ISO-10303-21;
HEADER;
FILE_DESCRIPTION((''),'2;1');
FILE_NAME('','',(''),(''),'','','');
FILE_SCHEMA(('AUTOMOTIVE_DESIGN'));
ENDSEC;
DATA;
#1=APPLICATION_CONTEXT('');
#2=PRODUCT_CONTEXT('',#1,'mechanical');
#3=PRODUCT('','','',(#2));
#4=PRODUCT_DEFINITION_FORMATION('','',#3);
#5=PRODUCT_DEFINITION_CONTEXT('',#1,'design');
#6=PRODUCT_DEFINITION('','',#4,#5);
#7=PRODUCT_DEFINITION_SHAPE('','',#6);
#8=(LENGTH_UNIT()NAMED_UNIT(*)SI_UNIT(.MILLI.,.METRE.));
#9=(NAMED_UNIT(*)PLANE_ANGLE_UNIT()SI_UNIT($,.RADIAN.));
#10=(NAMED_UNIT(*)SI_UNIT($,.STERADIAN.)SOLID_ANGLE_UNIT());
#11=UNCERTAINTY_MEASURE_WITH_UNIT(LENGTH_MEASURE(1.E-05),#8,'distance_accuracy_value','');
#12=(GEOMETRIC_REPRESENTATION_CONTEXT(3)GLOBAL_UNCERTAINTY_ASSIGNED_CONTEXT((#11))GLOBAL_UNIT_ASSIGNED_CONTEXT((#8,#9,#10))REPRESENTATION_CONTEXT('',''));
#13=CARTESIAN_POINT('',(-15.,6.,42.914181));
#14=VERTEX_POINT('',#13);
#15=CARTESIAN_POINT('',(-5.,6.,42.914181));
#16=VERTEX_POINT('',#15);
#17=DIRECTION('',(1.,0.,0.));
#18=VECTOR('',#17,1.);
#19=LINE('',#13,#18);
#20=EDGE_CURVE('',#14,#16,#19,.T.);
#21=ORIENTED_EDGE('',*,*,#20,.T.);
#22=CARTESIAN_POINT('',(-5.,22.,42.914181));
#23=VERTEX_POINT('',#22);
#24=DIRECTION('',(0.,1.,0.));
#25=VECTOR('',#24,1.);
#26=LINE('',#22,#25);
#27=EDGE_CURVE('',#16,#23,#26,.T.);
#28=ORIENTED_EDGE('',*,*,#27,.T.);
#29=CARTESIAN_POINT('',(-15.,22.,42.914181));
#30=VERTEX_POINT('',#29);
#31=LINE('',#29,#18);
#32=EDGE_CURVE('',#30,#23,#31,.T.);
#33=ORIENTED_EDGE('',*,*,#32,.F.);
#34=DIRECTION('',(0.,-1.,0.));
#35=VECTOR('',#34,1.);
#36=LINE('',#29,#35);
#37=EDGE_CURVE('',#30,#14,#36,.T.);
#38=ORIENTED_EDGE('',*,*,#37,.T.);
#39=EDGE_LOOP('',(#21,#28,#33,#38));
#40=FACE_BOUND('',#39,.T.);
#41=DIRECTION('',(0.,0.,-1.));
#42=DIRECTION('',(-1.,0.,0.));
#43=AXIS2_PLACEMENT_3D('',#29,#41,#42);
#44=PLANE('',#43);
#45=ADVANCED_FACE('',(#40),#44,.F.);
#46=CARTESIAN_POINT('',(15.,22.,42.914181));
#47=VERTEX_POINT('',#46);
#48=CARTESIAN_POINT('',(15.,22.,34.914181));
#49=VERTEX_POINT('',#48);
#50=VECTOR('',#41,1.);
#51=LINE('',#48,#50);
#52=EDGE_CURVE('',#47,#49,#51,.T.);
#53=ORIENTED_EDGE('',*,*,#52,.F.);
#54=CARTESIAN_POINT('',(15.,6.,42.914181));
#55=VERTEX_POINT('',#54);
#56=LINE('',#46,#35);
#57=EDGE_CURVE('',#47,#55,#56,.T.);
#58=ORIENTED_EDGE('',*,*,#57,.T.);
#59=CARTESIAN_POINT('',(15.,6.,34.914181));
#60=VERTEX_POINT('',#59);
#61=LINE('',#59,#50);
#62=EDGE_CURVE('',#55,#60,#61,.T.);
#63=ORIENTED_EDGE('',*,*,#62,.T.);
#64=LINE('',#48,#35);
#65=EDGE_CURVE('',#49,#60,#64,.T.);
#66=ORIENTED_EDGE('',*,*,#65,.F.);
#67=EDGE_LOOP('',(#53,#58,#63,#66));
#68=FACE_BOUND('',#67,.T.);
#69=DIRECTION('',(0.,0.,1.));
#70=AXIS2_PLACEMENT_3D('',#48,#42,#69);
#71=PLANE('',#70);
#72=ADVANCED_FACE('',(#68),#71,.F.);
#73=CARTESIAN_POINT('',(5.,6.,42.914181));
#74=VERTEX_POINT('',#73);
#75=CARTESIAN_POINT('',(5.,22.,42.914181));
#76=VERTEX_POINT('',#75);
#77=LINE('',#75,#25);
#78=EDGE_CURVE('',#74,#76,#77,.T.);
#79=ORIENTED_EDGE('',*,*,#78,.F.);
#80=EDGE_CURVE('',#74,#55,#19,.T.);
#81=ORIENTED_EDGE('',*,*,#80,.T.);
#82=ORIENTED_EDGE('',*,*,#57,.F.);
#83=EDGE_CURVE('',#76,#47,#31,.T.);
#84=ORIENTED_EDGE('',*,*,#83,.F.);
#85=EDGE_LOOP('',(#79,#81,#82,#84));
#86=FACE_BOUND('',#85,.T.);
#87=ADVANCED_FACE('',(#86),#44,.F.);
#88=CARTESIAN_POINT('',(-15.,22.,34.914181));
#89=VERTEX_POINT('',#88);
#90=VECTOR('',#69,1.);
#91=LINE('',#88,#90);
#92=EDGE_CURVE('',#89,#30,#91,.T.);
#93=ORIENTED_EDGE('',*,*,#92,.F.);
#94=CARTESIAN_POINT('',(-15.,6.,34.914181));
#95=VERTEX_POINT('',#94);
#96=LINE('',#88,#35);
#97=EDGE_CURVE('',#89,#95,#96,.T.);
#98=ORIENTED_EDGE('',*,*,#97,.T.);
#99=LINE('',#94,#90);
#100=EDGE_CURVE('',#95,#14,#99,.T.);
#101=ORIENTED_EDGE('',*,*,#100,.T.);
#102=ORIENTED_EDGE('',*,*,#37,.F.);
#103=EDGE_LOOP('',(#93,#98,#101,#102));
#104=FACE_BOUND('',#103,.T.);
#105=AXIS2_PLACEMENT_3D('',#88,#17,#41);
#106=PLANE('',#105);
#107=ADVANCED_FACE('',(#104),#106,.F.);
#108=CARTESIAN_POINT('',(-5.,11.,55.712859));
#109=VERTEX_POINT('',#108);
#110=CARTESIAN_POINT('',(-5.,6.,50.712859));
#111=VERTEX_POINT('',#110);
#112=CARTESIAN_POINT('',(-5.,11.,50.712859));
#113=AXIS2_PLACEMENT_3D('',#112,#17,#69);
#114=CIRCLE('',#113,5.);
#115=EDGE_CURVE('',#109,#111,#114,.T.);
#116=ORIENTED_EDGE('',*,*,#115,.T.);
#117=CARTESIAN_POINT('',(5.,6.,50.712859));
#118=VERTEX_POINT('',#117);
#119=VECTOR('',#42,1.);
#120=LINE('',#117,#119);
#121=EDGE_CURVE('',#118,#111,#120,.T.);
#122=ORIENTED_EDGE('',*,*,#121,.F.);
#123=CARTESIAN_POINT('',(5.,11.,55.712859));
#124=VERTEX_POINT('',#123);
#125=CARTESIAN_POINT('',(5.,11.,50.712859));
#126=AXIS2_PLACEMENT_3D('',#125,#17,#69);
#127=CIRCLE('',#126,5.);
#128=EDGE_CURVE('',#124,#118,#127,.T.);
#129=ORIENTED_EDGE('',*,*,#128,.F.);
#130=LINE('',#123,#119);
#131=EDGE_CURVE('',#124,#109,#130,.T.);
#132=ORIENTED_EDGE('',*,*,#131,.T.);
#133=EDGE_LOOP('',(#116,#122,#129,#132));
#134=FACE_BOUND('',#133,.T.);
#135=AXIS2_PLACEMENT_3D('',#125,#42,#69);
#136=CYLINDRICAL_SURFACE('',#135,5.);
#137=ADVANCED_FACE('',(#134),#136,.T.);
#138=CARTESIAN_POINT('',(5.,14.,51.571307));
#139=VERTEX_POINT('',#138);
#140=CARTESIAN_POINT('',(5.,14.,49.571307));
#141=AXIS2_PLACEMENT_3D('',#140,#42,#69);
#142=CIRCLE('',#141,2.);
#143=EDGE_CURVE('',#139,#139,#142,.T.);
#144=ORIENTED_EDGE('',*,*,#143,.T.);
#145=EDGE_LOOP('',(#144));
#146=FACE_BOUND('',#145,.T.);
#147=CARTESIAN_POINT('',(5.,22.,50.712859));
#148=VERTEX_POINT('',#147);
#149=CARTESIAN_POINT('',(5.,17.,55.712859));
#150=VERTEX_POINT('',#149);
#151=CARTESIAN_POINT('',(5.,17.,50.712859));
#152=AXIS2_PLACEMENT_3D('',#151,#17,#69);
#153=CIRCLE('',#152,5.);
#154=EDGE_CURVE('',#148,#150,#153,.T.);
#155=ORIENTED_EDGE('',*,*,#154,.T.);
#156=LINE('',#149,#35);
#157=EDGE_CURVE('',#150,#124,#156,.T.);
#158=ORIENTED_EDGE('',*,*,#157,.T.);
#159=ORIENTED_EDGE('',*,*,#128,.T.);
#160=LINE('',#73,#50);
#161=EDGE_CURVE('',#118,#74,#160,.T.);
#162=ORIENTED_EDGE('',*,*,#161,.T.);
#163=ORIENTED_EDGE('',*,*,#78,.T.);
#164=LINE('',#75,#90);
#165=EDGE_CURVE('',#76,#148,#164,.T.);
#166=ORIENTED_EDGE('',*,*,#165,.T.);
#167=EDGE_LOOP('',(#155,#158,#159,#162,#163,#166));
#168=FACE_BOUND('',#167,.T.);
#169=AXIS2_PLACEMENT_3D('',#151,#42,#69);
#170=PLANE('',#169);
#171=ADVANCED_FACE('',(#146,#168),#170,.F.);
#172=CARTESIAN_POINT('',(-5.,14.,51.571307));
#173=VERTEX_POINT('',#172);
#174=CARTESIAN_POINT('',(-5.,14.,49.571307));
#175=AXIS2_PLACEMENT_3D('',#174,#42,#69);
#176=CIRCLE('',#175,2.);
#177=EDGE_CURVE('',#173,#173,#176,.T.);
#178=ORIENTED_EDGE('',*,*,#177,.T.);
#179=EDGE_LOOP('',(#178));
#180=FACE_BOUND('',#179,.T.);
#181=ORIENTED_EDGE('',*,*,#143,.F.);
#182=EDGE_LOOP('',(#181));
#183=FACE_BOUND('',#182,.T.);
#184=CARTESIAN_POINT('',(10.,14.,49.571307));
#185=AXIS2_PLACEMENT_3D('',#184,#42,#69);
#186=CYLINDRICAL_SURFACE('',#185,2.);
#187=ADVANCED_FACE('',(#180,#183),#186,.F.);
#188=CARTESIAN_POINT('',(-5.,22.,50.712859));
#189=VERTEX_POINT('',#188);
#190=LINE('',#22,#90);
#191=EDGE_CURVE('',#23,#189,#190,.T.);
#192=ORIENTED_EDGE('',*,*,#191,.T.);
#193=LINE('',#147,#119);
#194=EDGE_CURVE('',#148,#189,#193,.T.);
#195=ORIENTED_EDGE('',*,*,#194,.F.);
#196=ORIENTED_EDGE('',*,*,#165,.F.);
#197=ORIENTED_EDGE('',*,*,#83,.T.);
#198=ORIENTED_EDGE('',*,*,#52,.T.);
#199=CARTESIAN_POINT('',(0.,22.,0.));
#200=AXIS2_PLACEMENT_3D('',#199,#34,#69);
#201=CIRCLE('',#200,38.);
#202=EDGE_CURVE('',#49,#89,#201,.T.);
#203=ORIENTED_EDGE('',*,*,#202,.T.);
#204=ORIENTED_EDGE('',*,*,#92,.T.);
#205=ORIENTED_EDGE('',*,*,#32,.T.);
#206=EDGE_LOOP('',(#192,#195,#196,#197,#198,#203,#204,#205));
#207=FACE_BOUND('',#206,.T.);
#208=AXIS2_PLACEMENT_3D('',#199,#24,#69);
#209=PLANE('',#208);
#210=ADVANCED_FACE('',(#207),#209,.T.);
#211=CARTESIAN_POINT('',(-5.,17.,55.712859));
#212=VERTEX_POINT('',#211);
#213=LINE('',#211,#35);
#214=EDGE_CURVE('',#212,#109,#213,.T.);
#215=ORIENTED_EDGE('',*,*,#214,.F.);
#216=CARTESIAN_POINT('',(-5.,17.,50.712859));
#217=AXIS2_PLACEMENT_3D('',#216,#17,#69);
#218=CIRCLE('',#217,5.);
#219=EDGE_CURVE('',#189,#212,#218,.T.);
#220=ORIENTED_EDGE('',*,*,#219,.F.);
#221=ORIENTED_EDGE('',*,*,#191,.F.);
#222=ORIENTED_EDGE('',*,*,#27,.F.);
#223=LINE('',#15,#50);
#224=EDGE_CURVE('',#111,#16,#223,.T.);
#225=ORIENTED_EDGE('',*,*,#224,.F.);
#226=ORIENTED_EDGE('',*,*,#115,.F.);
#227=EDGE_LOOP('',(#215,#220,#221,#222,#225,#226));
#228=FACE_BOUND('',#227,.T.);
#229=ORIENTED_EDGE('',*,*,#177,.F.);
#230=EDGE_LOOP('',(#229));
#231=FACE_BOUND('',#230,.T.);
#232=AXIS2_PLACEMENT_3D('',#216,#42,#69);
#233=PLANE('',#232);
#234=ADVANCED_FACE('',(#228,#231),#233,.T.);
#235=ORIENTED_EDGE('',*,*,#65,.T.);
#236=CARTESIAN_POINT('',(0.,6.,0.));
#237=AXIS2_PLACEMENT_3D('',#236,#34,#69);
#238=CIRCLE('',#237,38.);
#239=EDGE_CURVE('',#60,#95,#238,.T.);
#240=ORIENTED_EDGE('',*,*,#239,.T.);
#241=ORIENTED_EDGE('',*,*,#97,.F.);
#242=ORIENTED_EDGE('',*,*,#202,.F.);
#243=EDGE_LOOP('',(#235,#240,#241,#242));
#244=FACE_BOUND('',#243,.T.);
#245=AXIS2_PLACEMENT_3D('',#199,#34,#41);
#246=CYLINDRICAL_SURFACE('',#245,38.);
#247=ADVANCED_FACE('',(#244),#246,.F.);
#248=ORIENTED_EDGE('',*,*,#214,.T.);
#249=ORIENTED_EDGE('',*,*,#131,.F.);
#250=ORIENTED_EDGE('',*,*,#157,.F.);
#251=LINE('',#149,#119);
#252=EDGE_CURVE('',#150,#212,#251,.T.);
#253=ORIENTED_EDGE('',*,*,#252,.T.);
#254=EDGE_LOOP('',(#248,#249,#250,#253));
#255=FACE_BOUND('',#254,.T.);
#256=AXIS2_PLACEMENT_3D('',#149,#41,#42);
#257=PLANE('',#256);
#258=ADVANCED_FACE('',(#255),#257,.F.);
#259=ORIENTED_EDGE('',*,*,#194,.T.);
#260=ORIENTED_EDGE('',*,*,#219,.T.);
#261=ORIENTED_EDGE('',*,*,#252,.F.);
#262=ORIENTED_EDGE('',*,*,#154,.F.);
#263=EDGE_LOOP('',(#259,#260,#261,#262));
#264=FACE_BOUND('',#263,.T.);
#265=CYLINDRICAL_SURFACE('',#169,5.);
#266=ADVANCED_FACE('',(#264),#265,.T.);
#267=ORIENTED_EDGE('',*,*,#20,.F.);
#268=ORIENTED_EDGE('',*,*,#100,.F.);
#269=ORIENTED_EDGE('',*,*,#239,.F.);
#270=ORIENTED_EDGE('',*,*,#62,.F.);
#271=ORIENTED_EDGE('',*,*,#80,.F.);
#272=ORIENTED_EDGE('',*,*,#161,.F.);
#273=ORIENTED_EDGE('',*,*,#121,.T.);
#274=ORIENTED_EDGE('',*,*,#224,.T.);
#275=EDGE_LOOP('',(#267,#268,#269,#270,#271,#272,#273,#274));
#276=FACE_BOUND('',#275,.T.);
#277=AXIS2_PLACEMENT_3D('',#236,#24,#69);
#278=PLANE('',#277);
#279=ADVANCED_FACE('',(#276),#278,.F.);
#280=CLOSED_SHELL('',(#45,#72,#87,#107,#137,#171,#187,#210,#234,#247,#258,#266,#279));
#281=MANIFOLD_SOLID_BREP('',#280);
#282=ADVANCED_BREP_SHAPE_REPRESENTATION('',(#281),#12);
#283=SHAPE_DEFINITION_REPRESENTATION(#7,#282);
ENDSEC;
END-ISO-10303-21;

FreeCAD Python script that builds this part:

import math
import FreeCAD as App
import Part
import Sketcher
Q = App.Units.Quantity

doc = App.newDocument("Part")
body = doc.addObject("PartDesign::Body", "Body")

sketch1 = doc.addObject("Sketcher::SketchObject", "Sketch")
body.addObject(sketch1)
sketch1.AttachmentSupport = (doc.XZ_Plane, [""])
sketch1.MapMode = "FlatFace"
sketch1.AttachmentOffset = App.Placement(App.Vector(0, 0, -6), App.Rotation())
sketch1.addGeometry([
    Part.LineSegment(App.Vector(-15, 35, 0), App.Vector(-15, 43, 0)),
    Part.LineSegment(App.Vector(-15, 43, 0), App.Vector(15, 43, 0)),
    Part.LineSegment(App.Vector(15, 43, 0), App.Vector(15, 35, 0)),
    Part.ArcOfCircle(Part.Circle(App.Vector(0, 0, 0), App.Vector(0, 0, 1), 38), math.radians(67), math.radians(113)),
], False)
sketch1.addConstraint([
    Sketcher.Constraint("Coincident", 0, 2, 1, 1),
    Sketcher.Constraint("Coincident", 1, 2, 2, 1),
    Sketcher.Constraint("Coincident", 2, 2, 3, 1),
    Sketcher.Constraint("Coincident", 3, 2, 0, 1),
    Sketcher.Constraint("Vertical", 0),
    Sketcher.Constraint("Horizontal", 1),
    Sketcher.Constraint("Vertical", 2),
    Sketcher.Constraint("Coincident", 3, 3, -1, 1),
    Sketcher.Constraint("Horizontal", 2, 2, 3, 2),
    Sketcher.Constraint("Radius", 3, Q("38 mm")),
    Sketcher.Constraint("DistanceX", 1, 1, 1, 2, Q("30 mm")),
    Sketcher.Constraint("DistanceY", 0, 1, 0, 2, Q("8 mm")),
])
pad1 = doc.addObject("PartDesign::Pad", "Pad")
body.addObject(pad1)
pad1.Profile = sketch1
pad1.Length = 16
pad1.Reversed = True

sketch2 = doc.addObject("Sketcher::SketchObject", "Sketch001")
body.addObject(sketch2)
sketch2.AttachmentSupport = (doc.YZ_Plane, [""])
sketch2.MapMode = "FlatFace"
sketch2.addGeometry([
    Part.LineSegment(App.Vector(22, 43, 0), App.Vector(22, 51, 0)),
    Part.ArcOfCircle(Part.Circle(App.Vector(17, 51, 0), App.Vector(0, 0, 1), 5), math.radians(0), math.radians(90)),
    Part.LineSegment(App.Vector(17, 56, 0), App.Vector(11, 56, 0)),
    Part.ArcOfCircle(Part.Circle(App.Vector(11, 51, 0), App.Vector(0, 0, 1), 5), math.radians(90), math.radians(180)),
    Part.LineSegment(App.Vector(6, 51, 0), App.Vector(6, 43, 0)),
    Part.LineSegment(App.Vector(6, 43, 0), App.Vector(22, 43, 0)),
], False)
sketch2.addConstraint([
    Sketcher.Constraint("Tangent", 0, 2, 1, 1),
    Sketcher.Constraint("Tangent", 1, 2, 2, 1),
    Sketcher.Constraint("Tangent", 2, 2, 3, 1),
    Sketcher.Constraint("Tangent", 3, 2, 4, 1),
    Sketcher.Constraint("Coincident", 4, 2, 5, 1),
    Sketcher.Constraint("Coincident", 5, 2, 0, 1),
    Sketcher.Constraint("Vertical", 0),
    Sketcher.Constraint("Horizontal", 2),
    Sketcher.Constraint("Vertical", 4),
    Sketcher.Constraint("Horizontal", 5),
    Sketcher.Constraint("Equal", 1, 3),
    Sketcher.Constraint("Radius", 1, Q("5 mm")),
    Sketcher.Constraint("DistanceX", 2, 2, 2, 1, Q("6 mm")),
    Sketcher.Constraint("DistanceX", -1, 1, 1, 3, Q("17 mm")),
    Sketcher.Constraint("DistanceY", 0, 1, 0, 2, Q("7.798678 mm")),
    Sketcher.Constraint("DistanceY", -1, 1, 1, 3, Q("50.712859 mm")),
])
pad2 = doc.addObject("PartDesign::Pad", "Pad001")
body.addObject(pad2)
pad2.Profile = sketch2
pad2.Length = 10
pad2.Midplane = True

sketch3 = doc.addObject("Sketcher::SketchObject", "Sketch002")
body.addObject(sketch3)
sketch3.AttachmentSupport = (doc.YZ_Plane, [""])
sketch3.MapMode = "FlatFace"
sketch3.AttachmentOffset = App.Placement(App.Vector(0, 0, -5), App.Rotation())
sketch3.addGeometry(Part.Circle(App.Vector(14, 49.6, 0), App.Vector(0, 0, 1), 2), False)
sketch3.addConstraint([
    Sketcher.Constraint("Diameter", 0, Q("4 mm")),
    Sketcher.Constraint("DistanceX", -1, 1, 0, 3, Q("14 mm")),
    Sketcher.Constraint("DistanceY", -1, 1, 0, 3, Q("49.571307 mm")),
])
pocket1 = doc.addObject("PartDesign::Pocket", "Pocket")
body.addObject(pocket1)
pocket1.Profile = sketch3
pocket1.Length = 30
pocket1.Midplane = True

doc.recompute()
